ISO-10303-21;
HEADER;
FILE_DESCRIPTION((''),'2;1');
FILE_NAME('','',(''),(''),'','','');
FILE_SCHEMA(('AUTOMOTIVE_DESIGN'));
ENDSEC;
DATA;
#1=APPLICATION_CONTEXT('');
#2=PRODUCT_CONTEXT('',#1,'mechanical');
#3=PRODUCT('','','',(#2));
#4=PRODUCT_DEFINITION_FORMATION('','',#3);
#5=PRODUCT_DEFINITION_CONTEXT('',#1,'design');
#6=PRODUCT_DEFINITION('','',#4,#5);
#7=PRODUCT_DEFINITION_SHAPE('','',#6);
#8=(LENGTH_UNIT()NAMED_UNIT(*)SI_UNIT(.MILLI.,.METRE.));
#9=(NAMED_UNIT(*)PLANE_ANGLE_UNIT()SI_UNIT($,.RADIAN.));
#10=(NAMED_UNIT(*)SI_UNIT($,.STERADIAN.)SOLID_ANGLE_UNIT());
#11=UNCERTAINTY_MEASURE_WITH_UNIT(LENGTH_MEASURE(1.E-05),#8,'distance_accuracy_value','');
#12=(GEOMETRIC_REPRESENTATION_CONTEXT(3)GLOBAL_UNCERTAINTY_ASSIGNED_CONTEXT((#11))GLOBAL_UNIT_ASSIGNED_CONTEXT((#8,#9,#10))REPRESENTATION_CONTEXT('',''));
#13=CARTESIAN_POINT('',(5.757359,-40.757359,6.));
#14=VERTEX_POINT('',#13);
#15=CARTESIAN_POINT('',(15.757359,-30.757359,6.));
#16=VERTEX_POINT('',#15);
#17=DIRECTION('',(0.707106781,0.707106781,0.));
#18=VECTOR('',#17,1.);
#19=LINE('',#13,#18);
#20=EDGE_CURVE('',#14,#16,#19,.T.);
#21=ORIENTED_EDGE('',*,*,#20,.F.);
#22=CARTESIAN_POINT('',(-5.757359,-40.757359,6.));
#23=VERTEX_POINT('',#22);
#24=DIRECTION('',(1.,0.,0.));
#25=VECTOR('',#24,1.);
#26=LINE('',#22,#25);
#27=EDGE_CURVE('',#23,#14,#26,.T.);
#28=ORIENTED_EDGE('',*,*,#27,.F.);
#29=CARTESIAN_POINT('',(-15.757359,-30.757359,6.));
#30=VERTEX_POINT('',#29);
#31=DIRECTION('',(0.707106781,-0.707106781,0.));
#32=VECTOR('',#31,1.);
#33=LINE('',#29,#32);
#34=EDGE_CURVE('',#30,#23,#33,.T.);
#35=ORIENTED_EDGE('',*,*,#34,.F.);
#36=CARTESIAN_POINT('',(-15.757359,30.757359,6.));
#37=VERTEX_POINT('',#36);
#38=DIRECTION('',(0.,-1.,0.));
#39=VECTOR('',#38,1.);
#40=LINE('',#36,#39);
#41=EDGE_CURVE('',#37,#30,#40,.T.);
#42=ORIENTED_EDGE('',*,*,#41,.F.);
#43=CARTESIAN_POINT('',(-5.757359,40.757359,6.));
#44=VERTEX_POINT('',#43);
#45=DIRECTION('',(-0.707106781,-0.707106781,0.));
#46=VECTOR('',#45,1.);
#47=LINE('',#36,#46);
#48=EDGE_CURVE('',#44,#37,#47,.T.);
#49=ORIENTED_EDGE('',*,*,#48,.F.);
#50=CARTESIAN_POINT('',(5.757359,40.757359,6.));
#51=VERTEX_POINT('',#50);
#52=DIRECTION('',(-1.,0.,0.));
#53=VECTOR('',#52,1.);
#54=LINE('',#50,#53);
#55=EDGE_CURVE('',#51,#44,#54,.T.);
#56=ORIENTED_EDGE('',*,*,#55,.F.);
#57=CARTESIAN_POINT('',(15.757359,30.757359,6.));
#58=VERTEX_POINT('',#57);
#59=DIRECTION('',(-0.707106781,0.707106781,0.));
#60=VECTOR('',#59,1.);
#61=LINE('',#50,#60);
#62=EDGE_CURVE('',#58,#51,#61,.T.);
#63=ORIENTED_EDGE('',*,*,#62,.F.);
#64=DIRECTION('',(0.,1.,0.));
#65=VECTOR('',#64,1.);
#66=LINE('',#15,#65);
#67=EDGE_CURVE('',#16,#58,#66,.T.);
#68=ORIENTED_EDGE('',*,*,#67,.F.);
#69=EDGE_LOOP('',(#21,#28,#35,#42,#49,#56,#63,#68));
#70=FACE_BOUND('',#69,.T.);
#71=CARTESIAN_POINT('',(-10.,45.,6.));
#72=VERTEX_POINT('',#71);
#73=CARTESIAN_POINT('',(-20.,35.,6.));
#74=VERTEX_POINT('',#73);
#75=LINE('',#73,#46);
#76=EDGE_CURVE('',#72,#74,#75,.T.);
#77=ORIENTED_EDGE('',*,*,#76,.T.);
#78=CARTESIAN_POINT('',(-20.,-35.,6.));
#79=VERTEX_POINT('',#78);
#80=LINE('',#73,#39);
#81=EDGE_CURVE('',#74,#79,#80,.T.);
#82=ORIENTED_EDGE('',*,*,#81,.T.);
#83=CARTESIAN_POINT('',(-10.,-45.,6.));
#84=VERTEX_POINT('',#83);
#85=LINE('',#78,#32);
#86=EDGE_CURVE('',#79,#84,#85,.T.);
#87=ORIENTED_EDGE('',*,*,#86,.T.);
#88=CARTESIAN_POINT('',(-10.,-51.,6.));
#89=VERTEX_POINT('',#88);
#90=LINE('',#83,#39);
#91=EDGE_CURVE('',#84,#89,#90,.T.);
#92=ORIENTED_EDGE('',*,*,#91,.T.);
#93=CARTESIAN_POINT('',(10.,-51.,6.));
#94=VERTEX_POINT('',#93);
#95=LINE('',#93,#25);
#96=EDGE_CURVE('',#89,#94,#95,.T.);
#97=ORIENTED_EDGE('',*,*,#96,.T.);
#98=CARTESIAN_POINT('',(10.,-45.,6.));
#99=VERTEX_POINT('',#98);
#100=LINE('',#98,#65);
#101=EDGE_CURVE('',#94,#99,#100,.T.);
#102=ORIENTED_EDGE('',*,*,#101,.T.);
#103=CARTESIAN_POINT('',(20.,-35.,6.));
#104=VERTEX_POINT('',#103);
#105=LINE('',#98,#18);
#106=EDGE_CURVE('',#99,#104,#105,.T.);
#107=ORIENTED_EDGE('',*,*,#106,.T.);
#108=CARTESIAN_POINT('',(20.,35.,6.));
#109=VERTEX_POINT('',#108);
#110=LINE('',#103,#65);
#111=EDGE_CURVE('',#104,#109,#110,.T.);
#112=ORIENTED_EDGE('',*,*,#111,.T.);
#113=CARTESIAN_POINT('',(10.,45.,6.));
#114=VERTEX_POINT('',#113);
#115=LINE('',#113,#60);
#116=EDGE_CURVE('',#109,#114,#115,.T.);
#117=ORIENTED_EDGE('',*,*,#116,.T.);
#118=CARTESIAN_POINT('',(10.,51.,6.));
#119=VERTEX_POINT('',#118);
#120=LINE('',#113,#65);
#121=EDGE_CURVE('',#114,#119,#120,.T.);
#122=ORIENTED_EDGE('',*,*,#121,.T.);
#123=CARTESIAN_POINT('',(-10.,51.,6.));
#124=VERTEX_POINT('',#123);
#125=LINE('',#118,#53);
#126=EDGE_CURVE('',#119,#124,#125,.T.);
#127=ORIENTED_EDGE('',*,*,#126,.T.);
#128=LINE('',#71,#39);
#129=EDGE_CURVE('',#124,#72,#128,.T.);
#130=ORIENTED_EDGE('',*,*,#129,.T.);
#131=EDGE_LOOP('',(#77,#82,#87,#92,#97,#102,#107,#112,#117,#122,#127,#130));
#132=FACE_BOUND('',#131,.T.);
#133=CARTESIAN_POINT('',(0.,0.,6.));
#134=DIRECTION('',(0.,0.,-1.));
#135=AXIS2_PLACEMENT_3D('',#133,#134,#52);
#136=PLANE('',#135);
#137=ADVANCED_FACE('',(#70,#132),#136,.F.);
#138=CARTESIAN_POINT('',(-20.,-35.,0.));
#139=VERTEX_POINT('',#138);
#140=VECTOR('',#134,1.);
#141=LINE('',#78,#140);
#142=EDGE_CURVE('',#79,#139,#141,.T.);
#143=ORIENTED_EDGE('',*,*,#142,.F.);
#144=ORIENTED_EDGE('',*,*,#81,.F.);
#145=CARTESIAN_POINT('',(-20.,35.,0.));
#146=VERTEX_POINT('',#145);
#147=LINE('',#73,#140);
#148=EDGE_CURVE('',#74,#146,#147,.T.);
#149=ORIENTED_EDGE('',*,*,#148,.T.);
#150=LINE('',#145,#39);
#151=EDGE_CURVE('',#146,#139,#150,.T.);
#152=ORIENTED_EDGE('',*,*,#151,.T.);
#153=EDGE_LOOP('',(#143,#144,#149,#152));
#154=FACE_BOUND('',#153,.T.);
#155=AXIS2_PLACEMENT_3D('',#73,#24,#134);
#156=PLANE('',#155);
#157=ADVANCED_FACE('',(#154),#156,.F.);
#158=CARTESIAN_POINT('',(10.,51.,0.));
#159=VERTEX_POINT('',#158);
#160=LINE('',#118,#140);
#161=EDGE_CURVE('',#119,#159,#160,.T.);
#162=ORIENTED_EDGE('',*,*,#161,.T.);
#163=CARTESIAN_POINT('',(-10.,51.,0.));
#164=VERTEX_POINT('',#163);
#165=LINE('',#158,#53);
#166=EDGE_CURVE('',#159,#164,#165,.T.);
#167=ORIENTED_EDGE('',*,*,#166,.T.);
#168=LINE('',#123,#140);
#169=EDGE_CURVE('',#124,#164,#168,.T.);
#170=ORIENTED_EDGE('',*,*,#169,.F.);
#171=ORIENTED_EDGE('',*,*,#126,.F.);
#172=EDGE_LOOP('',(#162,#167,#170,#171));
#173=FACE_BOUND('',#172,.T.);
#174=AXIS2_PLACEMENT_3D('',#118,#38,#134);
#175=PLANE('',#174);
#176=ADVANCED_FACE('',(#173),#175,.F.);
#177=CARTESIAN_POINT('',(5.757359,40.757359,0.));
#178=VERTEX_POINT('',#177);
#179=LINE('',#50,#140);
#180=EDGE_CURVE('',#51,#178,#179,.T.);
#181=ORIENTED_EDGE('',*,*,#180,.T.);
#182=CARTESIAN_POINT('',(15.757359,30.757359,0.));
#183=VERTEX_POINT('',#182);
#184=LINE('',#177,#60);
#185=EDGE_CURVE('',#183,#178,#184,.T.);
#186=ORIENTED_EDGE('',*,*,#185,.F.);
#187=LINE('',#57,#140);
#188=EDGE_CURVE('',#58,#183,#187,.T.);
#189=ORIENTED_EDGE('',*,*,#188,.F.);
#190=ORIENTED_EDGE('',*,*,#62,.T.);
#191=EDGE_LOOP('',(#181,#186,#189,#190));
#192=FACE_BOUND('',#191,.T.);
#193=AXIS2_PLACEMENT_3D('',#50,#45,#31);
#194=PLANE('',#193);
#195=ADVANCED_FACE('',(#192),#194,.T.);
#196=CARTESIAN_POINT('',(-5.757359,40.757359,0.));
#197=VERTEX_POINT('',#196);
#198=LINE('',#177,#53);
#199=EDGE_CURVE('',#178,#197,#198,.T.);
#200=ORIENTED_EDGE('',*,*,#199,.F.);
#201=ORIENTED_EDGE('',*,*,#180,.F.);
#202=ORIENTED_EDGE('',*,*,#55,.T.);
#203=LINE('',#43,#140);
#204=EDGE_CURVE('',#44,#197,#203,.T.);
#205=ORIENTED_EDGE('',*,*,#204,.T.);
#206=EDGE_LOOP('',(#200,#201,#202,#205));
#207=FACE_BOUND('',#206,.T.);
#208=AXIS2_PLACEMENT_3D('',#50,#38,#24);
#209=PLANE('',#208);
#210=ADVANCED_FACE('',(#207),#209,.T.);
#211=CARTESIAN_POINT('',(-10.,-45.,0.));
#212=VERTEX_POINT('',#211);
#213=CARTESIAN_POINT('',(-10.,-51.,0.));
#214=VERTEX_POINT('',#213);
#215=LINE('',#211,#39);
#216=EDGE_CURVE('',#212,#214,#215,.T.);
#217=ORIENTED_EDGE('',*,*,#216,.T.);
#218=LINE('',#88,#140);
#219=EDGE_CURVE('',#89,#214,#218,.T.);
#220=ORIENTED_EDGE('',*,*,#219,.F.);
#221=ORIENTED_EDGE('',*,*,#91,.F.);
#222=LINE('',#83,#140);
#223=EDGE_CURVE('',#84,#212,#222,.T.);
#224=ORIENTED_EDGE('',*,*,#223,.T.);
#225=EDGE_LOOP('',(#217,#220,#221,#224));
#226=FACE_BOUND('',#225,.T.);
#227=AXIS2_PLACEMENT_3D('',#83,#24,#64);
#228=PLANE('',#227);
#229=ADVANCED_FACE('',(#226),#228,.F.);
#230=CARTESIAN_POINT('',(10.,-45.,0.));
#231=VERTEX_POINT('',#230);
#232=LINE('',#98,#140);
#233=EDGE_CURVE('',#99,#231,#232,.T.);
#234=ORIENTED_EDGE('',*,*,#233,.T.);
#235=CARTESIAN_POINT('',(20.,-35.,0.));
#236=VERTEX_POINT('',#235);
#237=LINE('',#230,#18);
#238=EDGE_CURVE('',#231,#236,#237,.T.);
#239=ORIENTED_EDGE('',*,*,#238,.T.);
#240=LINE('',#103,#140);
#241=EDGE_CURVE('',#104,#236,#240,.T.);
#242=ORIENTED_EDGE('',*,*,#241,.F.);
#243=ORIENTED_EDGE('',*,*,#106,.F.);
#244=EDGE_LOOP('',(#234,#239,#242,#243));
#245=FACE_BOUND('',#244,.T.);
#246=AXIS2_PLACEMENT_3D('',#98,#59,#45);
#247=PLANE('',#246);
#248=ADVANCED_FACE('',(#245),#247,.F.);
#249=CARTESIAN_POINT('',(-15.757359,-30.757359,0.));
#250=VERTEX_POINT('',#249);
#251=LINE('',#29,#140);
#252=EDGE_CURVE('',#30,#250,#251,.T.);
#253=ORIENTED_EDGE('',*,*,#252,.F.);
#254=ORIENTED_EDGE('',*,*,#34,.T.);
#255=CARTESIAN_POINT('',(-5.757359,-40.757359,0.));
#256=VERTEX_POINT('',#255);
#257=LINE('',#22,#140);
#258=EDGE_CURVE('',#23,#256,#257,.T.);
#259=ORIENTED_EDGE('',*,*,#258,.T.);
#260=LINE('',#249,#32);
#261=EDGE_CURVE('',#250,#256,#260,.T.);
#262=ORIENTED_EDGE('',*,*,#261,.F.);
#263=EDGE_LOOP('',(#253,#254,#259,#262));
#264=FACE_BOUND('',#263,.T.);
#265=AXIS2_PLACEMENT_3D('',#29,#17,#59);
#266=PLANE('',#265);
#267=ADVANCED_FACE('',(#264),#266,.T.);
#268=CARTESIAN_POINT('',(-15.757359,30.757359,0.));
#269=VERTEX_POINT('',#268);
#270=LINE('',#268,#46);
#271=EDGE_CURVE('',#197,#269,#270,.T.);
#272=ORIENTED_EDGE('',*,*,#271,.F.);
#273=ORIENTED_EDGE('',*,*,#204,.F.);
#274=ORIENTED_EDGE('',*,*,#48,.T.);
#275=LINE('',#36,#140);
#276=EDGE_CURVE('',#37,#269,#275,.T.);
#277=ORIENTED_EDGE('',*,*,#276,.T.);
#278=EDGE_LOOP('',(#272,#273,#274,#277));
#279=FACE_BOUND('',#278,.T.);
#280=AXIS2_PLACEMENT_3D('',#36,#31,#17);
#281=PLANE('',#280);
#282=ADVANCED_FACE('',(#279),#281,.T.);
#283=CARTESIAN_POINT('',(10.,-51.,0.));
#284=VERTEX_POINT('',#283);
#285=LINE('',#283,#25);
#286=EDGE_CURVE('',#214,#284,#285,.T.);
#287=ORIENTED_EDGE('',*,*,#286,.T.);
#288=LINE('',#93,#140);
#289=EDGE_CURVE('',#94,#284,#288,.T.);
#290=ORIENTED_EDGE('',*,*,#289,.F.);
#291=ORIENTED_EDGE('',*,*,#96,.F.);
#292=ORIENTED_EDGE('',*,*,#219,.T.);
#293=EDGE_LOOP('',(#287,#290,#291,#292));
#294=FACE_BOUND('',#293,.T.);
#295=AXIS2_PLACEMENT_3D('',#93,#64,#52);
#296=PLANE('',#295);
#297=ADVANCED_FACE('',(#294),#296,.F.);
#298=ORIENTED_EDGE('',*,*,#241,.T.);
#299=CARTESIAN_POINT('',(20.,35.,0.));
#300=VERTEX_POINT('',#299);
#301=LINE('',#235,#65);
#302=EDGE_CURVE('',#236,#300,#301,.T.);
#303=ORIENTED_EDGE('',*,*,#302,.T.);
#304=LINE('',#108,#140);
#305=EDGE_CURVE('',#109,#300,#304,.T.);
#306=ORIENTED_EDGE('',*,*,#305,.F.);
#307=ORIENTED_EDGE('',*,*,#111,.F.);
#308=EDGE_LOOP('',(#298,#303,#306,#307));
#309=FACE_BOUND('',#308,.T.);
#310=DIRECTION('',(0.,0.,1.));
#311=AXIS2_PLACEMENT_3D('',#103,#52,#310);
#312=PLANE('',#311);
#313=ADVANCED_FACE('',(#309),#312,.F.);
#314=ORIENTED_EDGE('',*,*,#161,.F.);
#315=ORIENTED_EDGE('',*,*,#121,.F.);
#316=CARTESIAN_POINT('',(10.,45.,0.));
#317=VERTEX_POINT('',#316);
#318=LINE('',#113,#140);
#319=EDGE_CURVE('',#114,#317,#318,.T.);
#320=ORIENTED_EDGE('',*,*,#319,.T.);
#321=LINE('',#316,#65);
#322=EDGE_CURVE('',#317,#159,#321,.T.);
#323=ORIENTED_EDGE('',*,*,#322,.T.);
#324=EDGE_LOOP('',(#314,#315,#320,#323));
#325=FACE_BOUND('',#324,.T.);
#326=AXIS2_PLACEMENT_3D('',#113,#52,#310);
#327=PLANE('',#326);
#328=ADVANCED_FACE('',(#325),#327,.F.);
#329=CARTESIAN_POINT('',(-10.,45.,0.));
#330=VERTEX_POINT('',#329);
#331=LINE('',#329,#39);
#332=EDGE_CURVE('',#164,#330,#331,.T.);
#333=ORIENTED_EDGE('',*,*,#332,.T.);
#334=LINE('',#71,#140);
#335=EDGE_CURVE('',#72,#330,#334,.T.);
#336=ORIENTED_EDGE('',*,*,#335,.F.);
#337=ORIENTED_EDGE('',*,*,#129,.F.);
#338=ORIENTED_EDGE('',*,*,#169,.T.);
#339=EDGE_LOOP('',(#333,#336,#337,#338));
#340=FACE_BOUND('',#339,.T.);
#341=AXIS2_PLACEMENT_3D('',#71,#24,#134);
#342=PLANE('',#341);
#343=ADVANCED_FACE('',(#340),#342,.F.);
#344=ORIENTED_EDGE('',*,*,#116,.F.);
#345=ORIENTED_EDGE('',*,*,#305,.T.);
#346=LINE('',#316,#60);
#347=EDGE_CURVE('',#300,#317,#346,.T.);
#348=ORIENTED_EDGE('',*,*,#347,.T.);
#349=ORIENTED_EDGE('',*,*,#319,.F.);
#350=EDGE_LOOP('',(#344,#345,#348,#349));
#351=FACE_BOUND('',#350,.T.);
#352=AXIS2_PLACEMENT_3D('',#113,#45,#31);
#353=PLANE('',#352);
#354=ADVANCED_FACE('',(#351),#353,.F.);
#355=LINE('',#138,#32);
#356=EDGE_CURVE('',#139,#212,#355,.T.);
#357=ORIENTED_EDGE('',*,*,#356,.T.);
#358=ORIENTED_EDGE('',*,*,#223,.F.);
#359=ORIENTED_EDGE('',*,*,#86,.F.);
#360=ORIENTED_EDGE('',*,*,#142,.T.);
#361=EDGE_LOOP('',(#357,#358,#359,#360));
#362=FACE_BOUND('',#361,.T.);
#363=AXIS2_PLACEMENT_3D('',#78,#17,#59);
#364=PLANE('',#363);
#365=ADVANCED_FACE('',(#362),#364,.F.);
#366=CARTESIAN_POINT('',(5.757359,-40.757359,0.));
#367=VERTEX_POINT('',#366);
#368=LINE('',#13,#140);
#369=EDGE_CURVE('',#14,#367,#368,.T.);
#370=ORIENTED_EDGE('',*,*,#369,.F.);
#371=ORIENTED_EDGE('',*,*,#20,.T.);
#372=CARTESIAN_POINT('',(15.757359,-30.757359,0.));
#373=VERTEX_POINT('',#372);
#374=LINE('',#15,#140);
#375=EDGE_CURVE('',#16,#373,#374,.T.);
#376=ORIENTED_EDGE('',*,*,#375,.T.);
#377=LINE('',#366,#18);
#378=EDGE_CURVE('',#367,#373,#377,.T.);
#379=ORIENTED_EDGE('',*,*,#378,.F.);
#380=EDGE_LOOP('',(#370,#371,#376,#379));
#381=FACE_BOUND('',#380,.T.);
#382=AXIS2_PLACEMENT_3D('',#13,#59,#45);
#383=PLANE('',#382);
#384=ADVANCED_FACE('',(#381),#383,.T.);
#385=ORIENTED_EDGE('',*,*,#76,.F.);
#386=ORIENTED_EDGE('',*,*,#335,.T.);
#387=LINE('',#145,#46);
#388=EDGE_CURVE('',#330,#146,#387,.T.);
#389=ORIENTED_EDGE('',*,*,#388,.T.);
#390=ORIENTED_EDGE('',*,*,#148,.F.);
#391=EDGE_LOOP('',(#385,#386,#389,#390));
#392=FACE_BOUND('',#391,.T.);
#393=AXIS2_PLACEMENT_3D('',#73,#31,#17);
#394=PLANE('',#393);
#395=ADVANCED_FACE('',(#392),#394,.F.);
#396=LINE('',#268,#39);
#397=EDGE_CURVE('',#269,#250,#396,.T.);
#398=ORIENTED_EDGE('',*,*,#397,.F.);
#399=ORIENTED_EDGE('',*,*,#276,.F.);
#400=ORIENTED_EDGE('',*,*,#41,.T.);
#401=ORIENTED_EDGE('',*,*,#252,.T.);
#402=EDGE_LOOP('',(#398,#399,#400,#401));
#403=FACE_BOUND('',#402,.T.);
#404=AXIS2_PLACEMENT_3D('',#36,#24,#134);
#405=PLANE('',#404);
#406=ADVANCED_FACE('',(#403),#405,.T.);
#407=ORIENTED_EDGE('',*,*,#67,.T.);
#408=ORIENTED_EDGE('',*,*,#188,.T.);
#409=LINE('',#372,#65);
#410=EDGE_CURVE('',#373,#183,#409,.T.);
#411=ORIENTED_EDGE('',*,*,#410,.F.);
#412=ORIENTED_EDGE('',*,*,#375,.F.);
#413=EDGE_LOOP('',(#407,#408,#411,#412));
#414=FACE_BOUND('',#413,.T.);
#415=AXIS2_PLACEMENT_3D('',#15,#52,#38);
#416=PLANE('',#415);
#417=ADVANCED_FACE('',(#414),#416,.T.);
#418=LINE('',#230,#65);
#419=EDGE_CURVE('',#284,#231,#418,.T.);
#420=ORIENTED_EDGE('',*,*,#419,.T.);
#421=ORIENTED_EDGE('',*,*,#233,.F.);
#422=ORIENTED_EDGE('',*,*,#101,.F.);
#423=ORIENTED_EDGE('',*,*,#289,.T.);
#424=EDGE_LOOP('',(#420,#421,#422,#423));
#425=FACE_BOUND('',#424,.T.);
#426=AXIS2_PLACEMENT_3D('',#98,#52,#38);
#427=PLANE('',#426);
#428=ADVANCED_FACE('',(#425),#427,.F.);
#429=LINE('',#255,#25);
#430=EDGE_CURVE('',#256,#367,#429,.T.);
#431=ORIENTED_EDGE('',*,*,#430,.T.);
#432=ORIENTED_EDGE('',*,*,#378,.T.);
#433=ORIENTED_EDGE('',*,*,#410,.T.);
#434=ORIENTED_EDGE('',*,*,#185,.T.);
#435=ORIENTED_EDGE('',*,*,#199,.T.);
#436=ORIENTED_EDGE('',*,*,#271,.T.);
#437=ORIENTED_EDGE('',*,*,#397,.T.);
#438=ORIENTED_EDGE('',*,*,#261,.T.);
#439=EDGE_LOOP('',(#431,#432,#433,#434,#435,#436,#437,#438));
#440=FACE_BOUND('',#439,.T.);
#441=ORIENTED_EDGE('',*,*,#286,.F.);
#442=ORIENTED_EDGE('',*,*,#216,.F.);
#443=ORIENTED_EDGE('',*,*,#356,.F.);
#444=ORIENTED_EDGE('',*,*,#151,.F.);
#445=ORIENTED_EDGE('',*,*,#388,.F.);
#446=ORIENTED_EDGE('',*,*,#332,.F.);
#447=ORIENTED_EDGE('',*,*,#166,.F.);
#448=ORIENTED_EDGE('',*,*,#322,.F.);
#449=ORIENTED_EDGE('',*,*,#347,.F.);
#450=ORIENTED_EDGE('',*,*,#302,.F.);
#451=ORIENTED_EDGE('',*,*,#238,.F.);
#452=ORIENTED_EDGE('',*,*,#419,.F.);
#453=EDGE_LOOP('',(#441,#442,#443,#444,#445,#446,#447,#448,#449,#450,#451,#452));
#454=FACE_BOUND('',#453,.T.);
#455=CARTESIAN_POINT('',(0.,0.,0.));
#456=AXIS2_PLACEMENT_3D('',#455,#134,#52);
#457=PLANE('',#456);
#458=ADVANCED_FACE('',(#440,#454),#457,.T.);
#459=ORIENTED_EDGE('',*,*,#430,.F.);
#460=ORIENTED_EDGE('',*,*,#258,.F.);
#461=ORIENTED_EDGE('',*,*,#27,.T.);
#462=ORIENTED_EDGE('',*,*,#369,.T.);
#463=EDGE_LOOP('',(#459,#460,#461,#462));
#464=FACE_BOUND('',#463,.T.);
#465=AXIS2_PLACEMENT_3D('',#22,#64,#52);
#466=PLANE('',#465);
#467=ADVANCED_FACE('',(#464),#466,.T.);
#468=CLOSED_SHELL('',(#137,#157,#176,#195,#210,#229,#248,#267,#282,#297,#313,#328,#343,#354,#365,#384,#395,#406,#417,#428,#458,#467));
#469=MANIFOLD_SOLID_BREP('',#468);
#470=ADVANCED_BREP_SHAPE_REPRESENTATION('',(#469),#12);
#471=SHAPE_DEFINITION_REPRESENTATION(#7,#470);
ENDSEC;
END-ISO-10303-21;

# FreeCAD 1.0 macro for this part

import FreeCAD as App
import Part
import Sketcher
Q = App.Units.Quantity


def add_polygon(sketch, points):
    """Adds a closed chain of lines whose ends are joined by coincident constraints."""
    first, n = sketch.GeometryCount, len(points)
    for a, b in zip(points, points[1:] + points[:1]):
        sketch.addGeometry(Part.LineSegment(App.Vector(*a, 0), App.Vector(*b, 0)), False)
    for i in range(n):
        sketch.addConstraint(Sketcher.Constraint("Coincident", first + i, 2, first + (i + 1) % n, 1))

doc = App.newDocument("Part")
body = doc.addObject("PartDesign::Body", "Body")

sketch1 = doc.addObject("Sketcher::SketchObject", "Sketch")
body.addObject(sketch1)
sketch1.AttachmentSupport = (doc.XY_Plane, [""])
sketch1.MapMode = "FlatFace"
add_polygon(sketch1, [(20, -35), (20, 35), (10, 45), (10, 51), (-10, 51), (-10, 45), (-20, 35), (-20, -35), (-10, -45), (-10, -51), (10, -51), (10, -45)])
add_polygon(sketch1, [(-6, 41), (6, 41), (16, 31), (16, -31), (6, -41), (-6, -41), (-16, -31), (-16, 31)])
sketch1.addConstraint([
    Sketcher.Constraint("Vertical", 0),
    Sketcher.Constraint("Vertical", 2),
    Sketcher.Constraint("Horizontal", 3),
    Sketcher.Constraint("Vertical", 4),
    Sketcher.Constraint("Vertical", 6),
    Sketcher.Constraint("Vertical", 8),
    Sketcher.Constraint("Horizontal", 9),
    Sketcher.Constraint("Vertical", 10),
    Sketcher.Constraint("Horizontal", 12),
    Sketcher.Constraint("Vertical", 14),
    Sketcher.Constraint("Horizontal", 16),
    Sketcher.Constraint("Vertical", 18),
    Sketcher.Constraint("Symmetric", 0, 2, 6, 2, -1, 1),
    Sketcher.Constraint("Symmetric", 1, 2, 7, 2, -1, 1),
    Sketcher.Constraint("Symmetric", 3, 2, 9, 2, -1, 1),
    Sketcher.Constraint("Symmetric", 12, 2, 16, 2, -1, 1),
    Sketcher.Constraint("Symmetric", 13, 2, 17, 2, -1, 1),
    Sketcher.Constraint("Symmetric", 1, 2, 4, 2, -2),
    Sketcher.Constraint("Perpendicular", 1, 5),
    Sketcher.Constraint("Perpendicular", 7, 11),
    Sketcher.Constraint("Perpendicular", 11, 13),
    Sketcher.Constraint("Perpendicular", 13, 15),
    Sketcher.Constraint("Perpendicular", 17, 19),
    Sketcher.Constraint("Horizontal", 0, 2, 5, 2),
    Sketcher.Constraint("Horizontal", 7, 2, 10, 2),
    Sketcher.Constraint("Horizontal", 14, 2, 17, 2),
    Sketcher.Constraint("Horizontal", 13, 2, 18, 2),
    Sketcher.Constraint("Equal", 11, 13),
    Sketcher.Constraint("DistanceX", 3, 2, 3, 1, Q("20 mm")),
    Sketcher.Constraint("DistanceY", 0, 1, 0, 2, Q("70 mm")),
    Sketcher.Constraint("DistanceY", 2, 1, 2, 2, Q("6 mm")),
    Sketcher.Constraint("DistanceX", -1, 1, 0, 2, Q("20 mm")),
    Sketcher.Constraint("DistanceX", 12, 1, 12, 2, Q("11.514719 mm")),
    Sketcher.Constraint("DistanceY", 14, 2, 14, 1, Q("61.514719 mm")),
])
pad1 = doc.addObject("PartDesign::Pad", "Pad")
body.addObject(pad1)
pad1.Profile = sketch1
pad1.Length = 6

doc.recompute()
